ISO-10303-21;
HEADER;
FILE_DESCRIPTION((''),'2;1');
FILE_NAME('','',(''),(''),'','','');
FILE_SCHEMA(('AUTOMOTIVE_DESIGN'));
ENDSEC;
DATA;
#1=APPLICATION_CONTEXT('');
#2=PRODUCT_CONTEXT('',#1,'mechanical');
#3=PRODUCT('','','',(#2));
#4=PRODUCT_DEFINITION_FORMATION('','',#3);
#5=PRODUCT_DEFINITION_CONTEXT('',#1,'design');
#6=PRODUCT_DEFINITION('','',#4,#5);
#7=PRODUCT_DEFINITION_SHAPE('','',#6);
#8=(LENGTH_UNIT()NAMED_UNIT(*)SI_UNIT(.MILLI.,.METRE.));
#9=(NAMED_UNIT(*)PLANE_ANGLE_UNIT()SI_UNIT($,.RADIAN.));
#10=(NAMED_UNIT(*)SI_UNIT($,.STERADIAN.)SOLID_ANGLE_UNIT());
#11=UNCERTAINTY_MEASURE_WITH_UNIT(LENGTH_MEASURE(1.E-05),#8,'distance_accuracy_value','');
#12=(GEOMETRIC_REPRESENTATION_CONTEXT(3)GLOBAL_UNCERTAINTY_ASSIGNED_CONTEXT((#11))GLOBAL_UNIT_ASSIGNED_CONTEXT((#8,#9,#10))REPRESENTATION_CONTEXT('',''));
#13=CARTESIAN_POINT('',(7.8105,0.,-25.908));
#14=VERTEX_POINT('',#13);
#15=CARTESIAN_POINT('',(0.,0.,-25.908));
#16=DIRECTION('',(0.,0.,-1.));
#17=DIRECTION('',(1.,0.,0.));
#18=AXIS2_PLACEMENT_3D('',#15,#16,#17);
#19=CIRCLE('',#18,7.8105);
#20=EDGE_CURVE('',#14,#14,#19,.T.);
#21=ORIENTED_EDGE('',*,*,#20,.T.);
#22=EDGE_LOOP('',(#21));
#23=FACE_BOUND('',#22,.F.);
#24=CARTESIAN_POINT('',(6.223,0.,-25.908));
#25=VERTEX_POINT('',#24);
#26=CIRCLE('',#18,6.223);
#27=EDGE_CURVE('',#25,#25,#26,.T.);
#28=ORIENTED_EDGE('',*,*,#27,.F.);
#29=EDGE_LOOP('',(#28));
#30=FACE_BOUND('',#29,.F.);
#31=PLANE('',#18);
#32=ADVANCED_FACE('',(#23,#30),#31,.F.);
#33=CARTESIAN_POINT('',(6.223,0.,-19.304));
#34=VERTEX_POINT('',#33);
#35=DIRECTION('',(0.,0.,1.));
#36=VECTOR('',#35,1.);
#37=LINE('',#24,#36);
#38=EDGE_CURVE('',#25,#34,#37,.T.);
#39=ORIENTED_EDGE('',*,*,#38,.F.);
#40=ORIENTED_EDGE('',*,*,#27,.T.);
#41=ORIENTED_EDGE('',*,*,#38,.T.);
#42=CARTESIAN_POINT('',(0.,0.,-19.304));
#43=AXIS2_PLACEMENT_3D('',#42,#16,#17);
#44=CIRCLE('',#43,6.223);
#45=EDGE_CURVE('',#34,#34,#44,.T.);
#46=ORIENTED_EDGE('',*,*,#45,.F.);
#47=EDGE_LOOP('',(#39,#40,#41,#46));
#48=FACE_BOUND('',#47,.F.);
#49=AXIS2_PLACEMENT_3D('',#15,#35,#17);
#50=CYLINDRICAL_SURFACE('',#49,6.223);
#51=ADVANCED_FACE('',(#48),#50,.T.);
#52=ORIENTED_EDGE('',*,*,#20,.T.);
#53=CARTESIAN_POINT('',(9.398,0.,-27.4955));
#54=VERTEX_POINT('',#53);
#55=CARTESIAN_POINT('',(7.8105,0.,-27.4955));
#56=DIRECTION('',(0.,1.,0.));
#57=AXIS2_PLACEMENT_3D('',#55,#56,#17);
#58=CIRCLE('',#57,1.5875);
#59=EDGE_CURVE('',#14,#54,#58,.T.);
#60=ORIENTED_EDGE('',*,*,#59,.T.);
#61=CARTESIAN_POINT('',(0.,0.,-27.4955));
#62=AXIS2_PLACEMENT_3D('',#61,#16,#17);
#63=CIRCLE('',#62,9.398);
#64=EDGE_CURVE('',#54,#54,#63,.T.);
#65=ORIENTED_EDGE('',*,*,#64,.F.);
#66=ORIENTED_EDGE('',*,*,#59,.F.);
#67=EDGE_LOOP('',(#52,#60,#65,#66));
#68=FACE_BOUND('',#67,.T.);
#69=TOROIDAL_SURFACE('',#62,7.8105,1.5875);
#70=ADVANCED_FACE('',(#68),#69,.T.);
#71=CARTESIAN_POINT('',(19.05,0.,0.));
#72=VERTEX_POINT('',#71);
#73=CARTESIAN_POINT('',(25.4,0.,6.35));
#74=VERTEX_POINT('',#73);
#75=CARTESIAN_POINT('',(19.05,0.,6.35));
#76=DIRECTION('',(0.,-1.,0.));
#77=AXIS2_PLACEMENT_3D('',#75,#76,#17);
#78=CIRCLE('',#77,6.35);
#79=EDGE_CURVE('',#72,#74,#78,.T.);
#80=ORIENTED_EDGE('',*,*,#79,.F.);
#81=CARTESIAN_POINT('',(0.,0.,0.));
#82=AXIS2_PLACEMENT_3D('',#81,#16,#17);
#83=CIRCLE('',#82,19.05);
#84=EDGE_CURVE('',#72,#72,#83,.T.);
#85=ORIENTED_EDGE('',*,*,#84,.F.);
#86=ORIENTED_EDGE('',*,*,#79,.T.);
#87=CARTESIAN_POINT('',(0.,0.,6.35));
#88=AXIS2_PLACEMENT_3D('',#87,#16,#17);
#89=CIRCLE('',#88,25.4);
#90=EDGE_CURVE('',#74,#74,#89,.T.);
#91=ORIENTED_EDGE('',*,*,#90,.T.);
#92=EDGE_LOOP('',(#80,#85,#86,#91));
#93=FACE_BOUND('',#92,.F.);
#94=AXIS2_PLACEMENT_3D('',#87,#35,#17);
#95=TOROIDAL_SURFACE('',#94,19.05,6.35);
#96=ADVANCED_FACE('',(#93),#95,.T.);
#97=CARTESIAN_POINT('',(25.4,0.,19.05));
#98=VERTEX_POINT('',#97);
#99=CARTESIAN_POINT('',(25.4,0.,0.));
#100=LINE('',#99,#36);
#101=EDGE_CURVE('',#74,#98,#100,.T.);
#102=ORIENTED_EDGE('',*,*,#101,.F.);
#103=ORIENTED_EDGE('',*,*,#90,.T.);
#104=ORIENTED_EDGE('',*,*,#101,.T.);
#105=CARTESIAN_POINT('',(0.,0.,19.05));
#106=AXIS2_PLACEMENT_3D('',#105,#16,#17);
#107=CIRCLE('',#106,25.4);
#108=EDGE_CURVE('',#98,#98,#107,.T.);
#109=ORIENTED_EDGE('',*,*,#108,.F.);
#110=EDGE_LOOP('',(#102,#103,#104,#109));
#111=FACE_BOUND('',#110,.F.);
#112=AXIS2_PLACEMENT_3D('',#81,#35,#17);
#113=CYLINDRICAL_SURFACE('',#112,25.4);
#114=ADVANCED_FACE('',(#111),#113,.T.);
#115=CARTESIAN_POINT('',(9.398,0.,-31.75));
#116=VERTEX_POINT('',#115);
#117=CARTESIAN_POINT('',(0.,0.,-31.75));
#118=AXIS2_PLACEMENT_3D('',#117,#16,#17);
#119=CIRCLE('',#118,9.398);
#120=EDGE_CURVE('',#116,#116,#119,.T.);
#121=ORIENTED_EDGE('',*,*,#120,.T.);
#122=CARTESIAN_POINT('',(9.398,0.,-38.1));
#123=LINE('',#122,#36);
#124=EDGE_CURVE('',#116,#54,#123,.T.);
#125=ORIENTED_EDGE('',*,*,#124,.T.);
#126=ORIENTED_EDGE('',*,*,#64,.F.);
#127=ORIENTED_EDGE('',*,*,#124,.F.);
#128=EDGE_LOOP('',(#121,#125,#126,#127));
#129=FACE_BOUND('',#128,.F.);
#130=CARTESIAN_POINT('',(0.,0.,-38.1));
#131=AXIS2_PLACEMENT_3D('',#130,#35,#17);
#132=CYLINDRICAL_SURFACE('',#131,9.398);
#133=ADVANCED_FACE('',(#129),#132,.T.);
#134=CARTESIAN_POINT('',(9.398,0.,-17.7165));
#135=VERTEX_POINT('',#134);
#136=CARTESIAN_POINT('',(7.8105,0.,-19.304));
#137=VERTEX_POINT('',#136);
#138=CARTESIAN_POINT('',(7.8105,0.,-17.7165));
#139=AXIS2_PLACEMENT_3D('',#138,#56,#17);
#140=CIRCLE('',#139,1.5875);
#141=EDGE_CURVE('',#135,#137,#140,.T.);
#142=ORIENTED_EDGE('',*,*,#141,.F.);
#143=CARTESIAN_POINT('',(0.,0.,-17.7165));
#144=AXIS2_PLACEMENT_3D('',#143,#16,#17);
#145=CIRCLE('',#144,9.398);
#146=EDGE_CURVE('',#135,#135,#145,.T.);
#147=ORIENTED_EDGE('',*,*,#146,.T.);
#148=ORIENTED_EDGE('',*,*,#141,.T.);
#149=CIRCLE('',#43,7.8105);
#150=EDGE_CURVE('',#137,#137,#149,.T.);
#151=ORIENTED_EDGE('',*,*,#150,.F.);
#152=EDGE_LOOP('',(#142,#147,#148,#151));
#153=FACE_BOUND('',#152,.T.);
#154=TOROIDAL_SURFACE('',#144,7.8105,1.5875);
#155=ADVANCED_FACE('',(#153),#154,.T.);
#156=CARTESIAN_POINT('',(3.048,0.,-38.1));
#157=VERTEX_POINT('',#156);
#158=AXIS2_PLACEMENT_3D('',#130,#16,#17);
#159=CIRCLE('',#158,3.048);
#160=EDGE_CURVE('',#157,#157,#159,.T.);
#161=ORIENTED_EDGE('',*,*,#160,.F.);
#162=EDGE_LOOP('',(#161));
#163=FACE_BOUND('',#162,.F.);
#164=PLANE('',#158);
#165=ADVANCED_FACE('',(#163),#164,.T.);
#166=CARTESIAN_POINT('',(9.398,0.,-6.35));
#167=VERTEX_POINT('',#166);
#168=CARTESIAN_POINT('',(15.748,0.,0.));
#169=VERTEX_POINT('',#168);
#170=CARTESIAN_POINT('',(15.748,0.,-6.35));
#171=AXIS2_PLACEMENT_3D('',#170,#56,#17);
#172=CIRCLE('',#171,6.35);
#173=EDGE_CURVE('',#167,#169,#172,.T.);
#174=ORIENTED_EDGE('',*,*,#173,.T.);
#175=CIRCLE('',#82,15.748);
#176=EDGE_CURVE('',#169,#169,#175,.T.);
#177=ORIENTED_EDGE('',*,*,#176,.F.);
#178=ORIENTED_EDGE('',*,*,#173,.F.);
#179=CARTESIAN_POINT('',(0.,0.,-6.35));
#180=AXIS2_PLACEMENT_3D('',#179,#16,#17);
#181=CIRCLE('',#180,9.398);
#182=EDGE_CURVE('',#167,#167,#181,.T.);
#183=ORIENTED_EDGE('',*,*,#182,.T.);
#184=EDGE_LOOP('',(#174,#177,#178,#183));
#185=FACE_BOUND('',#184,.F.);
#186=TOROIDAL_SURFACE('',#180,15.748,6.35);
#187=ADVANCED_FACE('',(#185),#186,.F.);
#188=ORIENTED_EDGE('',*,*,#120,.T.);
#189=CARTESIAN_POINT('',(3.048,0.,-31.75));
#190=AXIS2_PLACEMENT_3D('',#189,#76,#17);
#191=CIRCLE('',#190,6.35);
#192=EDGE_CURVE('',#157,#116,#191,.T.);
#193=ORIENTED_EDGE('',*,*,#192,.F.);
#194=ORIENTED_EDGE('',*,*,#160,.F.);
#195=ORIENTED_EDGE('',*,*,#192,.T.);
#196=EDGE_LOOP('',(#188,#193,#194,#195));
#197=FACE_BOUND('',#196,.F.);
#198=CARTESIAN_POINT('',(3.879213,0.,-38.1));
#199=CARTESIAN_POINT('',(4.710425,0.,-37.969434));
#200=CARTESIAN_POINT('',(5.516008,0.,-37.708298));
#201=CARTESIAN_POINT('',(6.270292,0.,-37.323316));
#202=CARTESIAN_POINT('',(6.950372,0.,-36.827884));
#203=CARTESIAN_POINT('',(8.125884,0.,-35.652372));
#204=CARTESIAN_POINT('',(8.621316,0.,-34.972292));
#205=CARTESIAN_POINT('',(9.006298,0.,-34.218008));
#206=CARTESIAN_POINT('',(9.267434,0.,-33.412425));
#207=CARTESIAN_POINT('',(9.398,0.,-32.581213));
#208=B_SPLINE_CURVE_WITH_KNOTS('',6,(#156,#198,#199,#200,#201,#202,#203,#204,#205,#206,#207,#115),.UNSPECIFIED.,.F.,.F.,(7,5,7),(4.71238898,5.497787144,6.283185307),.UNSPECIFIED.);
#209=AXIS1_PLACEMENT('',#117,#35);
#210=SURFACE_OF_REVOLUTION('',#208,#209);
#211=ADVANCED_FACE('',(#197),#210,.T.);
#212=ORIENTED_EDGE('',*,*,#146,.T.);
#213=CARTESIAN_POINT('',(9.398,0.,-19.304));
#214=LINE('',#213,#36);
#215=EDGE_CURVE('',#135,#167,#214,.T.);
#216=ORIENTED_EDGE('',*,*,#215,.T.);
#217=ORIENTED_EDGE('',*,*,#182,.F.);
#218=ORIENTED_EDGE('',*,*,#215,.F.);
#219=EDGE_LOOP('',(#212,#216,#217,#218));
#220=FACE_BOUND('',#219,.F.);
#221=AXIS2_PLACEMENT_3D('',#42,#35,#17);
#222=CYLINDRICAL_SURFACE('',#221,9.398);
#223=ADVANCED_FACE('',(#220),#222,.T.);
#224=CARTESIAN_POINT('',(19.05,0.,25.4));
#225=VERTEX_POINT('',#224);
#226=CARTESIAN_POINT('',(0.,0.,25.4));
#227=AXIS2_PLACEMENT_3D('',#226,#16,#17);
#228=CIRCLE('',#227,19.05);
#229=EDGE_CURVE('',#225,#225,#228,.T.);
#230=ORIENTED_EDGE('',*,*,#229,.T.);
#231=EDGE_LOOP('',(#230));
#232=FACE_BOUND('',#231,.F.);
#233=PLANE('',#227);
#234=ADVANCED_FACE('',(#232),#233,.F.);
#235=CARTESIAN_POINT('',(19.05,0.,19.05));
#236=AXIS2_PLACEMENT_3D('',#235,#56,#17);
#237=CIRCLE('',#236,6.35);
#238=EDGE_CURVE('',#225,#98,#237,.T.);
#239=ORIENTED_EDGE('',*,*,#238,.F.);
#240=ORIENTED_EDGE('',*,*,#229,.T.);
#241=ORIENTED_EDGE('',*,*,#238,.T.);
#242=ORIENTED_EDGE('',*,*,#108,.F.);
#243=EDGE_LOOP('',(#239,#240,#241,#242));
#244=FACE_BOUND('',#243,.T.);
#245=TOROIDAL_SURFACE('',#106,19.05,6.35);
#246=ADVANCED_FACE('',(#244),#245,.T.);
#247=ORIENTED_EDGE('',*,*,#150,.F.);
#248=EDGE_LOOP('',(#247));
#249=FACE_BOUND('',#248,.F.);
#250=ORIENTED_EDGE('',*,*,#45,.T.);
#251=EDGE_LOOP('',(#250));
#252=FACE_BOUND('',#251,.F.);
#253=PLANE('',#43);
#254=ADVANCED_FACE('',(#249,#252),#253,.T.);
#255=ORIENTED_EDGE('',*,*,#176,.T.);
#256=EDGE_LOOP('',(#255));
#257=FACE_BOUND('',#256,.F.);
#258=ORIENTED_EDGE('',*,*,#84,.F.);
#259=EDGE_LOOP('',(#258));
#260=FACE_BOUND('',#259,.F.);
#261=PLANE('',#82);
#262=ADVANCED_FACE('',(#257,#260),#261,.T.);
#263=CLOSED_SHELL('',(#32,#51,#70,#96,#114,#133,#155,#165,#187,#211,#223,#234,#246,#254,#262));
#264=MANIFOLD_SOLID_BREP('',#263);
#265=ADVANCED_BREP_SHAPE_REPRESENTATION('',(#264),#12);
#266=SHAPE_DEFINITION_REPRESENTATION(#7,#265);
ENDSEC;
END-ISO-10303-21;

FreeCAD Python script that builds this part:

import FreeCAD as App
import Part
import Sketcher
from FreeCAD import Vector
Q = App.Units.Quantity


def edges_at(feature, points):
    """Names of the edges that pass closest to the given points."""
    edges = feature.Shape.Edges
    near = lambda p: min(range(len(edges)), key=lambda i: edges[i].distToShape(Part.Vertex(*p))[0])
    return sorted({f"Edge{near(p) + 1}" for p in points})

doc = App.newDocument("Part")
body = doc.addObject("PartDesign::Body", "Body")

# Sketch on XZ plane
sketch1 = body.newObject("Sketcher::SketchObject", "Sketch")
sketch1.AttachmentSupport = (doc.getObject("XZ_Plane"), [""])
sketch1.MapMode = "FlatFace"
sketch1.addGeometry([
    Part.LineSegment(Vector(25.4, 25.4, 0), Vector(0, 25.4, 0)),  # 0
    Part.LineSegment(Vector(0, 25.4, 0), Vector(0, -38.1, 0)),  # 1
    Part.LineSegment(Vector(0, -38.1, 0), Vector(9.4, -38.1, 0)),  # 2
    Part.LineSegment(Vector(9.4, -38.1, 0), Vector(9.4, -25.9, 0)),  # 3
    Part.LineSegment(Vector(9.4, -25.9, 0), Vector(6.2, -25.9, 0)),  # 4
    Part.LineSegment(Vector(6.2, -25.9, 0), Vector(6.2, -19.3, 0)),  # 5
    Part.LineSegment(Vector(6.2, -19.3, 0), Vector(9.4, -19.3, 0)),  # 6
    Part.LineSegment(Vector(9.4, -19.3, 0), Vector(9.4, 0, 0)),  # 7
    Part.LineSegment(Vector(9.4, 0, 0), Vector(25.4, 0, 0)),  # 8
    Part.LineSegment(Vector(25.4, 0, 0), Vector(25.4, 25.4, 0)),  # 9
], False)
sketch1.addConstraint([
    Sketcher.Constraint("Coincident", 0, 2, 1, 1),
    Sketcher.Constraint("Coincident", 1, 2, 2, 1),
    Sketcher.Constraint("Coincident", 2, 2, 3, 1),
    Sketcher.Constraint("Coincident", 3, 2, 4, 1),
    Sketcher.Constraint("Coincident", 4, 2, 5, 1),
    Sketcher.Constraint("Coincident", 5, 2, 6, 1),
    Sketcher.Constraint("Coincident", 6, 2, 7, 1),
    Sketcher.Constraint("Coincident", 7, 2, 8, 1),
    Sketcher.Constraint("Coincident", 8, 2, 9, 1),
    Sketcher.Constraint("Coincident", 9, 2, 0, 1),
    Sketcher.Constraint("Horizontal", 0),
    Sketcher.Constraint("Vertical", 1),
    Sketcher.Constraint("Horizontal", 2),
    Sketcher.Constraint("Vertical", 3),
    Sketcher.Constraint("Horizontal", 4),
    Sketcher.Constraint("Vertical", 5),
    Sketcher.Constraint("Horizontal", 6),
    Sketcher.Constraint("Vertical", 7),
    Sketcher.Constraint("Horizontal", 8),
    Sketcher.Constraint("Vertical", 9),
    Sketcher.Constraint("PointOnObject", 0, 2, -2),
    Sketcher.Constraint("PointOnObject", 7, 2, -1),
    Sketcher.Constraint("Vertical", 3, 2, 6, 2),
    Sketcher.Constraint("Equal", 0, 9),
    Sketcher.Constraint("DistanceX", 0, 2, 0, 1, Q("1 in")),
    Sketcher.Constraint("DistanceY", 1, 2, 1, 1, Q("2.5 in")),
    Sketcher.Constraint("DistanceX", 2, 1, 2, 2, Q("0.37 in")),
    Sketcher.Constraint("DistanceY", 3, 1, 3, 2, Q("0.48 in")),
    Sketcher.Constraint("DistanceY", 5, 1, 5, 2, Q("0.26 in")),
    Sketcher.Constraint("DistanceX", 4, 2, 4, 1, Q("0.125 in")),
])
revolution = body.newObject("PartDesign::Revolution", "Revolution")
revolution.Profile = sketch1
revolution.ReferenceAxis = (sketch1, ["V_Axis"])
revolution.Angle = 360
doc.recompute()

fillet = body.newObject("PartDesign::Fillet", "Fillet")
fillet.Base = (revolution, edges_at(revolution, [
    (-25.4, 0, 0),
    (-25.4, 0, 25.4),
    (25.4, 0, 12.7),
    (-9.398, 0, -38.1),
    (-9.398, 0, 0),
]))
fillet.Radius = Q("0.25 in")
doc.recompute()

fillet2 = body.newObject("PartDesign::Fillet", "Fillet001")
fillet2.Base = (fillet, edges_at(fillet, [(-9.398, 0, -19.304), (-9.398, 0, -25.908)]))
fillet2.Radius = Q("0.0625 in")

doc.recompute()
